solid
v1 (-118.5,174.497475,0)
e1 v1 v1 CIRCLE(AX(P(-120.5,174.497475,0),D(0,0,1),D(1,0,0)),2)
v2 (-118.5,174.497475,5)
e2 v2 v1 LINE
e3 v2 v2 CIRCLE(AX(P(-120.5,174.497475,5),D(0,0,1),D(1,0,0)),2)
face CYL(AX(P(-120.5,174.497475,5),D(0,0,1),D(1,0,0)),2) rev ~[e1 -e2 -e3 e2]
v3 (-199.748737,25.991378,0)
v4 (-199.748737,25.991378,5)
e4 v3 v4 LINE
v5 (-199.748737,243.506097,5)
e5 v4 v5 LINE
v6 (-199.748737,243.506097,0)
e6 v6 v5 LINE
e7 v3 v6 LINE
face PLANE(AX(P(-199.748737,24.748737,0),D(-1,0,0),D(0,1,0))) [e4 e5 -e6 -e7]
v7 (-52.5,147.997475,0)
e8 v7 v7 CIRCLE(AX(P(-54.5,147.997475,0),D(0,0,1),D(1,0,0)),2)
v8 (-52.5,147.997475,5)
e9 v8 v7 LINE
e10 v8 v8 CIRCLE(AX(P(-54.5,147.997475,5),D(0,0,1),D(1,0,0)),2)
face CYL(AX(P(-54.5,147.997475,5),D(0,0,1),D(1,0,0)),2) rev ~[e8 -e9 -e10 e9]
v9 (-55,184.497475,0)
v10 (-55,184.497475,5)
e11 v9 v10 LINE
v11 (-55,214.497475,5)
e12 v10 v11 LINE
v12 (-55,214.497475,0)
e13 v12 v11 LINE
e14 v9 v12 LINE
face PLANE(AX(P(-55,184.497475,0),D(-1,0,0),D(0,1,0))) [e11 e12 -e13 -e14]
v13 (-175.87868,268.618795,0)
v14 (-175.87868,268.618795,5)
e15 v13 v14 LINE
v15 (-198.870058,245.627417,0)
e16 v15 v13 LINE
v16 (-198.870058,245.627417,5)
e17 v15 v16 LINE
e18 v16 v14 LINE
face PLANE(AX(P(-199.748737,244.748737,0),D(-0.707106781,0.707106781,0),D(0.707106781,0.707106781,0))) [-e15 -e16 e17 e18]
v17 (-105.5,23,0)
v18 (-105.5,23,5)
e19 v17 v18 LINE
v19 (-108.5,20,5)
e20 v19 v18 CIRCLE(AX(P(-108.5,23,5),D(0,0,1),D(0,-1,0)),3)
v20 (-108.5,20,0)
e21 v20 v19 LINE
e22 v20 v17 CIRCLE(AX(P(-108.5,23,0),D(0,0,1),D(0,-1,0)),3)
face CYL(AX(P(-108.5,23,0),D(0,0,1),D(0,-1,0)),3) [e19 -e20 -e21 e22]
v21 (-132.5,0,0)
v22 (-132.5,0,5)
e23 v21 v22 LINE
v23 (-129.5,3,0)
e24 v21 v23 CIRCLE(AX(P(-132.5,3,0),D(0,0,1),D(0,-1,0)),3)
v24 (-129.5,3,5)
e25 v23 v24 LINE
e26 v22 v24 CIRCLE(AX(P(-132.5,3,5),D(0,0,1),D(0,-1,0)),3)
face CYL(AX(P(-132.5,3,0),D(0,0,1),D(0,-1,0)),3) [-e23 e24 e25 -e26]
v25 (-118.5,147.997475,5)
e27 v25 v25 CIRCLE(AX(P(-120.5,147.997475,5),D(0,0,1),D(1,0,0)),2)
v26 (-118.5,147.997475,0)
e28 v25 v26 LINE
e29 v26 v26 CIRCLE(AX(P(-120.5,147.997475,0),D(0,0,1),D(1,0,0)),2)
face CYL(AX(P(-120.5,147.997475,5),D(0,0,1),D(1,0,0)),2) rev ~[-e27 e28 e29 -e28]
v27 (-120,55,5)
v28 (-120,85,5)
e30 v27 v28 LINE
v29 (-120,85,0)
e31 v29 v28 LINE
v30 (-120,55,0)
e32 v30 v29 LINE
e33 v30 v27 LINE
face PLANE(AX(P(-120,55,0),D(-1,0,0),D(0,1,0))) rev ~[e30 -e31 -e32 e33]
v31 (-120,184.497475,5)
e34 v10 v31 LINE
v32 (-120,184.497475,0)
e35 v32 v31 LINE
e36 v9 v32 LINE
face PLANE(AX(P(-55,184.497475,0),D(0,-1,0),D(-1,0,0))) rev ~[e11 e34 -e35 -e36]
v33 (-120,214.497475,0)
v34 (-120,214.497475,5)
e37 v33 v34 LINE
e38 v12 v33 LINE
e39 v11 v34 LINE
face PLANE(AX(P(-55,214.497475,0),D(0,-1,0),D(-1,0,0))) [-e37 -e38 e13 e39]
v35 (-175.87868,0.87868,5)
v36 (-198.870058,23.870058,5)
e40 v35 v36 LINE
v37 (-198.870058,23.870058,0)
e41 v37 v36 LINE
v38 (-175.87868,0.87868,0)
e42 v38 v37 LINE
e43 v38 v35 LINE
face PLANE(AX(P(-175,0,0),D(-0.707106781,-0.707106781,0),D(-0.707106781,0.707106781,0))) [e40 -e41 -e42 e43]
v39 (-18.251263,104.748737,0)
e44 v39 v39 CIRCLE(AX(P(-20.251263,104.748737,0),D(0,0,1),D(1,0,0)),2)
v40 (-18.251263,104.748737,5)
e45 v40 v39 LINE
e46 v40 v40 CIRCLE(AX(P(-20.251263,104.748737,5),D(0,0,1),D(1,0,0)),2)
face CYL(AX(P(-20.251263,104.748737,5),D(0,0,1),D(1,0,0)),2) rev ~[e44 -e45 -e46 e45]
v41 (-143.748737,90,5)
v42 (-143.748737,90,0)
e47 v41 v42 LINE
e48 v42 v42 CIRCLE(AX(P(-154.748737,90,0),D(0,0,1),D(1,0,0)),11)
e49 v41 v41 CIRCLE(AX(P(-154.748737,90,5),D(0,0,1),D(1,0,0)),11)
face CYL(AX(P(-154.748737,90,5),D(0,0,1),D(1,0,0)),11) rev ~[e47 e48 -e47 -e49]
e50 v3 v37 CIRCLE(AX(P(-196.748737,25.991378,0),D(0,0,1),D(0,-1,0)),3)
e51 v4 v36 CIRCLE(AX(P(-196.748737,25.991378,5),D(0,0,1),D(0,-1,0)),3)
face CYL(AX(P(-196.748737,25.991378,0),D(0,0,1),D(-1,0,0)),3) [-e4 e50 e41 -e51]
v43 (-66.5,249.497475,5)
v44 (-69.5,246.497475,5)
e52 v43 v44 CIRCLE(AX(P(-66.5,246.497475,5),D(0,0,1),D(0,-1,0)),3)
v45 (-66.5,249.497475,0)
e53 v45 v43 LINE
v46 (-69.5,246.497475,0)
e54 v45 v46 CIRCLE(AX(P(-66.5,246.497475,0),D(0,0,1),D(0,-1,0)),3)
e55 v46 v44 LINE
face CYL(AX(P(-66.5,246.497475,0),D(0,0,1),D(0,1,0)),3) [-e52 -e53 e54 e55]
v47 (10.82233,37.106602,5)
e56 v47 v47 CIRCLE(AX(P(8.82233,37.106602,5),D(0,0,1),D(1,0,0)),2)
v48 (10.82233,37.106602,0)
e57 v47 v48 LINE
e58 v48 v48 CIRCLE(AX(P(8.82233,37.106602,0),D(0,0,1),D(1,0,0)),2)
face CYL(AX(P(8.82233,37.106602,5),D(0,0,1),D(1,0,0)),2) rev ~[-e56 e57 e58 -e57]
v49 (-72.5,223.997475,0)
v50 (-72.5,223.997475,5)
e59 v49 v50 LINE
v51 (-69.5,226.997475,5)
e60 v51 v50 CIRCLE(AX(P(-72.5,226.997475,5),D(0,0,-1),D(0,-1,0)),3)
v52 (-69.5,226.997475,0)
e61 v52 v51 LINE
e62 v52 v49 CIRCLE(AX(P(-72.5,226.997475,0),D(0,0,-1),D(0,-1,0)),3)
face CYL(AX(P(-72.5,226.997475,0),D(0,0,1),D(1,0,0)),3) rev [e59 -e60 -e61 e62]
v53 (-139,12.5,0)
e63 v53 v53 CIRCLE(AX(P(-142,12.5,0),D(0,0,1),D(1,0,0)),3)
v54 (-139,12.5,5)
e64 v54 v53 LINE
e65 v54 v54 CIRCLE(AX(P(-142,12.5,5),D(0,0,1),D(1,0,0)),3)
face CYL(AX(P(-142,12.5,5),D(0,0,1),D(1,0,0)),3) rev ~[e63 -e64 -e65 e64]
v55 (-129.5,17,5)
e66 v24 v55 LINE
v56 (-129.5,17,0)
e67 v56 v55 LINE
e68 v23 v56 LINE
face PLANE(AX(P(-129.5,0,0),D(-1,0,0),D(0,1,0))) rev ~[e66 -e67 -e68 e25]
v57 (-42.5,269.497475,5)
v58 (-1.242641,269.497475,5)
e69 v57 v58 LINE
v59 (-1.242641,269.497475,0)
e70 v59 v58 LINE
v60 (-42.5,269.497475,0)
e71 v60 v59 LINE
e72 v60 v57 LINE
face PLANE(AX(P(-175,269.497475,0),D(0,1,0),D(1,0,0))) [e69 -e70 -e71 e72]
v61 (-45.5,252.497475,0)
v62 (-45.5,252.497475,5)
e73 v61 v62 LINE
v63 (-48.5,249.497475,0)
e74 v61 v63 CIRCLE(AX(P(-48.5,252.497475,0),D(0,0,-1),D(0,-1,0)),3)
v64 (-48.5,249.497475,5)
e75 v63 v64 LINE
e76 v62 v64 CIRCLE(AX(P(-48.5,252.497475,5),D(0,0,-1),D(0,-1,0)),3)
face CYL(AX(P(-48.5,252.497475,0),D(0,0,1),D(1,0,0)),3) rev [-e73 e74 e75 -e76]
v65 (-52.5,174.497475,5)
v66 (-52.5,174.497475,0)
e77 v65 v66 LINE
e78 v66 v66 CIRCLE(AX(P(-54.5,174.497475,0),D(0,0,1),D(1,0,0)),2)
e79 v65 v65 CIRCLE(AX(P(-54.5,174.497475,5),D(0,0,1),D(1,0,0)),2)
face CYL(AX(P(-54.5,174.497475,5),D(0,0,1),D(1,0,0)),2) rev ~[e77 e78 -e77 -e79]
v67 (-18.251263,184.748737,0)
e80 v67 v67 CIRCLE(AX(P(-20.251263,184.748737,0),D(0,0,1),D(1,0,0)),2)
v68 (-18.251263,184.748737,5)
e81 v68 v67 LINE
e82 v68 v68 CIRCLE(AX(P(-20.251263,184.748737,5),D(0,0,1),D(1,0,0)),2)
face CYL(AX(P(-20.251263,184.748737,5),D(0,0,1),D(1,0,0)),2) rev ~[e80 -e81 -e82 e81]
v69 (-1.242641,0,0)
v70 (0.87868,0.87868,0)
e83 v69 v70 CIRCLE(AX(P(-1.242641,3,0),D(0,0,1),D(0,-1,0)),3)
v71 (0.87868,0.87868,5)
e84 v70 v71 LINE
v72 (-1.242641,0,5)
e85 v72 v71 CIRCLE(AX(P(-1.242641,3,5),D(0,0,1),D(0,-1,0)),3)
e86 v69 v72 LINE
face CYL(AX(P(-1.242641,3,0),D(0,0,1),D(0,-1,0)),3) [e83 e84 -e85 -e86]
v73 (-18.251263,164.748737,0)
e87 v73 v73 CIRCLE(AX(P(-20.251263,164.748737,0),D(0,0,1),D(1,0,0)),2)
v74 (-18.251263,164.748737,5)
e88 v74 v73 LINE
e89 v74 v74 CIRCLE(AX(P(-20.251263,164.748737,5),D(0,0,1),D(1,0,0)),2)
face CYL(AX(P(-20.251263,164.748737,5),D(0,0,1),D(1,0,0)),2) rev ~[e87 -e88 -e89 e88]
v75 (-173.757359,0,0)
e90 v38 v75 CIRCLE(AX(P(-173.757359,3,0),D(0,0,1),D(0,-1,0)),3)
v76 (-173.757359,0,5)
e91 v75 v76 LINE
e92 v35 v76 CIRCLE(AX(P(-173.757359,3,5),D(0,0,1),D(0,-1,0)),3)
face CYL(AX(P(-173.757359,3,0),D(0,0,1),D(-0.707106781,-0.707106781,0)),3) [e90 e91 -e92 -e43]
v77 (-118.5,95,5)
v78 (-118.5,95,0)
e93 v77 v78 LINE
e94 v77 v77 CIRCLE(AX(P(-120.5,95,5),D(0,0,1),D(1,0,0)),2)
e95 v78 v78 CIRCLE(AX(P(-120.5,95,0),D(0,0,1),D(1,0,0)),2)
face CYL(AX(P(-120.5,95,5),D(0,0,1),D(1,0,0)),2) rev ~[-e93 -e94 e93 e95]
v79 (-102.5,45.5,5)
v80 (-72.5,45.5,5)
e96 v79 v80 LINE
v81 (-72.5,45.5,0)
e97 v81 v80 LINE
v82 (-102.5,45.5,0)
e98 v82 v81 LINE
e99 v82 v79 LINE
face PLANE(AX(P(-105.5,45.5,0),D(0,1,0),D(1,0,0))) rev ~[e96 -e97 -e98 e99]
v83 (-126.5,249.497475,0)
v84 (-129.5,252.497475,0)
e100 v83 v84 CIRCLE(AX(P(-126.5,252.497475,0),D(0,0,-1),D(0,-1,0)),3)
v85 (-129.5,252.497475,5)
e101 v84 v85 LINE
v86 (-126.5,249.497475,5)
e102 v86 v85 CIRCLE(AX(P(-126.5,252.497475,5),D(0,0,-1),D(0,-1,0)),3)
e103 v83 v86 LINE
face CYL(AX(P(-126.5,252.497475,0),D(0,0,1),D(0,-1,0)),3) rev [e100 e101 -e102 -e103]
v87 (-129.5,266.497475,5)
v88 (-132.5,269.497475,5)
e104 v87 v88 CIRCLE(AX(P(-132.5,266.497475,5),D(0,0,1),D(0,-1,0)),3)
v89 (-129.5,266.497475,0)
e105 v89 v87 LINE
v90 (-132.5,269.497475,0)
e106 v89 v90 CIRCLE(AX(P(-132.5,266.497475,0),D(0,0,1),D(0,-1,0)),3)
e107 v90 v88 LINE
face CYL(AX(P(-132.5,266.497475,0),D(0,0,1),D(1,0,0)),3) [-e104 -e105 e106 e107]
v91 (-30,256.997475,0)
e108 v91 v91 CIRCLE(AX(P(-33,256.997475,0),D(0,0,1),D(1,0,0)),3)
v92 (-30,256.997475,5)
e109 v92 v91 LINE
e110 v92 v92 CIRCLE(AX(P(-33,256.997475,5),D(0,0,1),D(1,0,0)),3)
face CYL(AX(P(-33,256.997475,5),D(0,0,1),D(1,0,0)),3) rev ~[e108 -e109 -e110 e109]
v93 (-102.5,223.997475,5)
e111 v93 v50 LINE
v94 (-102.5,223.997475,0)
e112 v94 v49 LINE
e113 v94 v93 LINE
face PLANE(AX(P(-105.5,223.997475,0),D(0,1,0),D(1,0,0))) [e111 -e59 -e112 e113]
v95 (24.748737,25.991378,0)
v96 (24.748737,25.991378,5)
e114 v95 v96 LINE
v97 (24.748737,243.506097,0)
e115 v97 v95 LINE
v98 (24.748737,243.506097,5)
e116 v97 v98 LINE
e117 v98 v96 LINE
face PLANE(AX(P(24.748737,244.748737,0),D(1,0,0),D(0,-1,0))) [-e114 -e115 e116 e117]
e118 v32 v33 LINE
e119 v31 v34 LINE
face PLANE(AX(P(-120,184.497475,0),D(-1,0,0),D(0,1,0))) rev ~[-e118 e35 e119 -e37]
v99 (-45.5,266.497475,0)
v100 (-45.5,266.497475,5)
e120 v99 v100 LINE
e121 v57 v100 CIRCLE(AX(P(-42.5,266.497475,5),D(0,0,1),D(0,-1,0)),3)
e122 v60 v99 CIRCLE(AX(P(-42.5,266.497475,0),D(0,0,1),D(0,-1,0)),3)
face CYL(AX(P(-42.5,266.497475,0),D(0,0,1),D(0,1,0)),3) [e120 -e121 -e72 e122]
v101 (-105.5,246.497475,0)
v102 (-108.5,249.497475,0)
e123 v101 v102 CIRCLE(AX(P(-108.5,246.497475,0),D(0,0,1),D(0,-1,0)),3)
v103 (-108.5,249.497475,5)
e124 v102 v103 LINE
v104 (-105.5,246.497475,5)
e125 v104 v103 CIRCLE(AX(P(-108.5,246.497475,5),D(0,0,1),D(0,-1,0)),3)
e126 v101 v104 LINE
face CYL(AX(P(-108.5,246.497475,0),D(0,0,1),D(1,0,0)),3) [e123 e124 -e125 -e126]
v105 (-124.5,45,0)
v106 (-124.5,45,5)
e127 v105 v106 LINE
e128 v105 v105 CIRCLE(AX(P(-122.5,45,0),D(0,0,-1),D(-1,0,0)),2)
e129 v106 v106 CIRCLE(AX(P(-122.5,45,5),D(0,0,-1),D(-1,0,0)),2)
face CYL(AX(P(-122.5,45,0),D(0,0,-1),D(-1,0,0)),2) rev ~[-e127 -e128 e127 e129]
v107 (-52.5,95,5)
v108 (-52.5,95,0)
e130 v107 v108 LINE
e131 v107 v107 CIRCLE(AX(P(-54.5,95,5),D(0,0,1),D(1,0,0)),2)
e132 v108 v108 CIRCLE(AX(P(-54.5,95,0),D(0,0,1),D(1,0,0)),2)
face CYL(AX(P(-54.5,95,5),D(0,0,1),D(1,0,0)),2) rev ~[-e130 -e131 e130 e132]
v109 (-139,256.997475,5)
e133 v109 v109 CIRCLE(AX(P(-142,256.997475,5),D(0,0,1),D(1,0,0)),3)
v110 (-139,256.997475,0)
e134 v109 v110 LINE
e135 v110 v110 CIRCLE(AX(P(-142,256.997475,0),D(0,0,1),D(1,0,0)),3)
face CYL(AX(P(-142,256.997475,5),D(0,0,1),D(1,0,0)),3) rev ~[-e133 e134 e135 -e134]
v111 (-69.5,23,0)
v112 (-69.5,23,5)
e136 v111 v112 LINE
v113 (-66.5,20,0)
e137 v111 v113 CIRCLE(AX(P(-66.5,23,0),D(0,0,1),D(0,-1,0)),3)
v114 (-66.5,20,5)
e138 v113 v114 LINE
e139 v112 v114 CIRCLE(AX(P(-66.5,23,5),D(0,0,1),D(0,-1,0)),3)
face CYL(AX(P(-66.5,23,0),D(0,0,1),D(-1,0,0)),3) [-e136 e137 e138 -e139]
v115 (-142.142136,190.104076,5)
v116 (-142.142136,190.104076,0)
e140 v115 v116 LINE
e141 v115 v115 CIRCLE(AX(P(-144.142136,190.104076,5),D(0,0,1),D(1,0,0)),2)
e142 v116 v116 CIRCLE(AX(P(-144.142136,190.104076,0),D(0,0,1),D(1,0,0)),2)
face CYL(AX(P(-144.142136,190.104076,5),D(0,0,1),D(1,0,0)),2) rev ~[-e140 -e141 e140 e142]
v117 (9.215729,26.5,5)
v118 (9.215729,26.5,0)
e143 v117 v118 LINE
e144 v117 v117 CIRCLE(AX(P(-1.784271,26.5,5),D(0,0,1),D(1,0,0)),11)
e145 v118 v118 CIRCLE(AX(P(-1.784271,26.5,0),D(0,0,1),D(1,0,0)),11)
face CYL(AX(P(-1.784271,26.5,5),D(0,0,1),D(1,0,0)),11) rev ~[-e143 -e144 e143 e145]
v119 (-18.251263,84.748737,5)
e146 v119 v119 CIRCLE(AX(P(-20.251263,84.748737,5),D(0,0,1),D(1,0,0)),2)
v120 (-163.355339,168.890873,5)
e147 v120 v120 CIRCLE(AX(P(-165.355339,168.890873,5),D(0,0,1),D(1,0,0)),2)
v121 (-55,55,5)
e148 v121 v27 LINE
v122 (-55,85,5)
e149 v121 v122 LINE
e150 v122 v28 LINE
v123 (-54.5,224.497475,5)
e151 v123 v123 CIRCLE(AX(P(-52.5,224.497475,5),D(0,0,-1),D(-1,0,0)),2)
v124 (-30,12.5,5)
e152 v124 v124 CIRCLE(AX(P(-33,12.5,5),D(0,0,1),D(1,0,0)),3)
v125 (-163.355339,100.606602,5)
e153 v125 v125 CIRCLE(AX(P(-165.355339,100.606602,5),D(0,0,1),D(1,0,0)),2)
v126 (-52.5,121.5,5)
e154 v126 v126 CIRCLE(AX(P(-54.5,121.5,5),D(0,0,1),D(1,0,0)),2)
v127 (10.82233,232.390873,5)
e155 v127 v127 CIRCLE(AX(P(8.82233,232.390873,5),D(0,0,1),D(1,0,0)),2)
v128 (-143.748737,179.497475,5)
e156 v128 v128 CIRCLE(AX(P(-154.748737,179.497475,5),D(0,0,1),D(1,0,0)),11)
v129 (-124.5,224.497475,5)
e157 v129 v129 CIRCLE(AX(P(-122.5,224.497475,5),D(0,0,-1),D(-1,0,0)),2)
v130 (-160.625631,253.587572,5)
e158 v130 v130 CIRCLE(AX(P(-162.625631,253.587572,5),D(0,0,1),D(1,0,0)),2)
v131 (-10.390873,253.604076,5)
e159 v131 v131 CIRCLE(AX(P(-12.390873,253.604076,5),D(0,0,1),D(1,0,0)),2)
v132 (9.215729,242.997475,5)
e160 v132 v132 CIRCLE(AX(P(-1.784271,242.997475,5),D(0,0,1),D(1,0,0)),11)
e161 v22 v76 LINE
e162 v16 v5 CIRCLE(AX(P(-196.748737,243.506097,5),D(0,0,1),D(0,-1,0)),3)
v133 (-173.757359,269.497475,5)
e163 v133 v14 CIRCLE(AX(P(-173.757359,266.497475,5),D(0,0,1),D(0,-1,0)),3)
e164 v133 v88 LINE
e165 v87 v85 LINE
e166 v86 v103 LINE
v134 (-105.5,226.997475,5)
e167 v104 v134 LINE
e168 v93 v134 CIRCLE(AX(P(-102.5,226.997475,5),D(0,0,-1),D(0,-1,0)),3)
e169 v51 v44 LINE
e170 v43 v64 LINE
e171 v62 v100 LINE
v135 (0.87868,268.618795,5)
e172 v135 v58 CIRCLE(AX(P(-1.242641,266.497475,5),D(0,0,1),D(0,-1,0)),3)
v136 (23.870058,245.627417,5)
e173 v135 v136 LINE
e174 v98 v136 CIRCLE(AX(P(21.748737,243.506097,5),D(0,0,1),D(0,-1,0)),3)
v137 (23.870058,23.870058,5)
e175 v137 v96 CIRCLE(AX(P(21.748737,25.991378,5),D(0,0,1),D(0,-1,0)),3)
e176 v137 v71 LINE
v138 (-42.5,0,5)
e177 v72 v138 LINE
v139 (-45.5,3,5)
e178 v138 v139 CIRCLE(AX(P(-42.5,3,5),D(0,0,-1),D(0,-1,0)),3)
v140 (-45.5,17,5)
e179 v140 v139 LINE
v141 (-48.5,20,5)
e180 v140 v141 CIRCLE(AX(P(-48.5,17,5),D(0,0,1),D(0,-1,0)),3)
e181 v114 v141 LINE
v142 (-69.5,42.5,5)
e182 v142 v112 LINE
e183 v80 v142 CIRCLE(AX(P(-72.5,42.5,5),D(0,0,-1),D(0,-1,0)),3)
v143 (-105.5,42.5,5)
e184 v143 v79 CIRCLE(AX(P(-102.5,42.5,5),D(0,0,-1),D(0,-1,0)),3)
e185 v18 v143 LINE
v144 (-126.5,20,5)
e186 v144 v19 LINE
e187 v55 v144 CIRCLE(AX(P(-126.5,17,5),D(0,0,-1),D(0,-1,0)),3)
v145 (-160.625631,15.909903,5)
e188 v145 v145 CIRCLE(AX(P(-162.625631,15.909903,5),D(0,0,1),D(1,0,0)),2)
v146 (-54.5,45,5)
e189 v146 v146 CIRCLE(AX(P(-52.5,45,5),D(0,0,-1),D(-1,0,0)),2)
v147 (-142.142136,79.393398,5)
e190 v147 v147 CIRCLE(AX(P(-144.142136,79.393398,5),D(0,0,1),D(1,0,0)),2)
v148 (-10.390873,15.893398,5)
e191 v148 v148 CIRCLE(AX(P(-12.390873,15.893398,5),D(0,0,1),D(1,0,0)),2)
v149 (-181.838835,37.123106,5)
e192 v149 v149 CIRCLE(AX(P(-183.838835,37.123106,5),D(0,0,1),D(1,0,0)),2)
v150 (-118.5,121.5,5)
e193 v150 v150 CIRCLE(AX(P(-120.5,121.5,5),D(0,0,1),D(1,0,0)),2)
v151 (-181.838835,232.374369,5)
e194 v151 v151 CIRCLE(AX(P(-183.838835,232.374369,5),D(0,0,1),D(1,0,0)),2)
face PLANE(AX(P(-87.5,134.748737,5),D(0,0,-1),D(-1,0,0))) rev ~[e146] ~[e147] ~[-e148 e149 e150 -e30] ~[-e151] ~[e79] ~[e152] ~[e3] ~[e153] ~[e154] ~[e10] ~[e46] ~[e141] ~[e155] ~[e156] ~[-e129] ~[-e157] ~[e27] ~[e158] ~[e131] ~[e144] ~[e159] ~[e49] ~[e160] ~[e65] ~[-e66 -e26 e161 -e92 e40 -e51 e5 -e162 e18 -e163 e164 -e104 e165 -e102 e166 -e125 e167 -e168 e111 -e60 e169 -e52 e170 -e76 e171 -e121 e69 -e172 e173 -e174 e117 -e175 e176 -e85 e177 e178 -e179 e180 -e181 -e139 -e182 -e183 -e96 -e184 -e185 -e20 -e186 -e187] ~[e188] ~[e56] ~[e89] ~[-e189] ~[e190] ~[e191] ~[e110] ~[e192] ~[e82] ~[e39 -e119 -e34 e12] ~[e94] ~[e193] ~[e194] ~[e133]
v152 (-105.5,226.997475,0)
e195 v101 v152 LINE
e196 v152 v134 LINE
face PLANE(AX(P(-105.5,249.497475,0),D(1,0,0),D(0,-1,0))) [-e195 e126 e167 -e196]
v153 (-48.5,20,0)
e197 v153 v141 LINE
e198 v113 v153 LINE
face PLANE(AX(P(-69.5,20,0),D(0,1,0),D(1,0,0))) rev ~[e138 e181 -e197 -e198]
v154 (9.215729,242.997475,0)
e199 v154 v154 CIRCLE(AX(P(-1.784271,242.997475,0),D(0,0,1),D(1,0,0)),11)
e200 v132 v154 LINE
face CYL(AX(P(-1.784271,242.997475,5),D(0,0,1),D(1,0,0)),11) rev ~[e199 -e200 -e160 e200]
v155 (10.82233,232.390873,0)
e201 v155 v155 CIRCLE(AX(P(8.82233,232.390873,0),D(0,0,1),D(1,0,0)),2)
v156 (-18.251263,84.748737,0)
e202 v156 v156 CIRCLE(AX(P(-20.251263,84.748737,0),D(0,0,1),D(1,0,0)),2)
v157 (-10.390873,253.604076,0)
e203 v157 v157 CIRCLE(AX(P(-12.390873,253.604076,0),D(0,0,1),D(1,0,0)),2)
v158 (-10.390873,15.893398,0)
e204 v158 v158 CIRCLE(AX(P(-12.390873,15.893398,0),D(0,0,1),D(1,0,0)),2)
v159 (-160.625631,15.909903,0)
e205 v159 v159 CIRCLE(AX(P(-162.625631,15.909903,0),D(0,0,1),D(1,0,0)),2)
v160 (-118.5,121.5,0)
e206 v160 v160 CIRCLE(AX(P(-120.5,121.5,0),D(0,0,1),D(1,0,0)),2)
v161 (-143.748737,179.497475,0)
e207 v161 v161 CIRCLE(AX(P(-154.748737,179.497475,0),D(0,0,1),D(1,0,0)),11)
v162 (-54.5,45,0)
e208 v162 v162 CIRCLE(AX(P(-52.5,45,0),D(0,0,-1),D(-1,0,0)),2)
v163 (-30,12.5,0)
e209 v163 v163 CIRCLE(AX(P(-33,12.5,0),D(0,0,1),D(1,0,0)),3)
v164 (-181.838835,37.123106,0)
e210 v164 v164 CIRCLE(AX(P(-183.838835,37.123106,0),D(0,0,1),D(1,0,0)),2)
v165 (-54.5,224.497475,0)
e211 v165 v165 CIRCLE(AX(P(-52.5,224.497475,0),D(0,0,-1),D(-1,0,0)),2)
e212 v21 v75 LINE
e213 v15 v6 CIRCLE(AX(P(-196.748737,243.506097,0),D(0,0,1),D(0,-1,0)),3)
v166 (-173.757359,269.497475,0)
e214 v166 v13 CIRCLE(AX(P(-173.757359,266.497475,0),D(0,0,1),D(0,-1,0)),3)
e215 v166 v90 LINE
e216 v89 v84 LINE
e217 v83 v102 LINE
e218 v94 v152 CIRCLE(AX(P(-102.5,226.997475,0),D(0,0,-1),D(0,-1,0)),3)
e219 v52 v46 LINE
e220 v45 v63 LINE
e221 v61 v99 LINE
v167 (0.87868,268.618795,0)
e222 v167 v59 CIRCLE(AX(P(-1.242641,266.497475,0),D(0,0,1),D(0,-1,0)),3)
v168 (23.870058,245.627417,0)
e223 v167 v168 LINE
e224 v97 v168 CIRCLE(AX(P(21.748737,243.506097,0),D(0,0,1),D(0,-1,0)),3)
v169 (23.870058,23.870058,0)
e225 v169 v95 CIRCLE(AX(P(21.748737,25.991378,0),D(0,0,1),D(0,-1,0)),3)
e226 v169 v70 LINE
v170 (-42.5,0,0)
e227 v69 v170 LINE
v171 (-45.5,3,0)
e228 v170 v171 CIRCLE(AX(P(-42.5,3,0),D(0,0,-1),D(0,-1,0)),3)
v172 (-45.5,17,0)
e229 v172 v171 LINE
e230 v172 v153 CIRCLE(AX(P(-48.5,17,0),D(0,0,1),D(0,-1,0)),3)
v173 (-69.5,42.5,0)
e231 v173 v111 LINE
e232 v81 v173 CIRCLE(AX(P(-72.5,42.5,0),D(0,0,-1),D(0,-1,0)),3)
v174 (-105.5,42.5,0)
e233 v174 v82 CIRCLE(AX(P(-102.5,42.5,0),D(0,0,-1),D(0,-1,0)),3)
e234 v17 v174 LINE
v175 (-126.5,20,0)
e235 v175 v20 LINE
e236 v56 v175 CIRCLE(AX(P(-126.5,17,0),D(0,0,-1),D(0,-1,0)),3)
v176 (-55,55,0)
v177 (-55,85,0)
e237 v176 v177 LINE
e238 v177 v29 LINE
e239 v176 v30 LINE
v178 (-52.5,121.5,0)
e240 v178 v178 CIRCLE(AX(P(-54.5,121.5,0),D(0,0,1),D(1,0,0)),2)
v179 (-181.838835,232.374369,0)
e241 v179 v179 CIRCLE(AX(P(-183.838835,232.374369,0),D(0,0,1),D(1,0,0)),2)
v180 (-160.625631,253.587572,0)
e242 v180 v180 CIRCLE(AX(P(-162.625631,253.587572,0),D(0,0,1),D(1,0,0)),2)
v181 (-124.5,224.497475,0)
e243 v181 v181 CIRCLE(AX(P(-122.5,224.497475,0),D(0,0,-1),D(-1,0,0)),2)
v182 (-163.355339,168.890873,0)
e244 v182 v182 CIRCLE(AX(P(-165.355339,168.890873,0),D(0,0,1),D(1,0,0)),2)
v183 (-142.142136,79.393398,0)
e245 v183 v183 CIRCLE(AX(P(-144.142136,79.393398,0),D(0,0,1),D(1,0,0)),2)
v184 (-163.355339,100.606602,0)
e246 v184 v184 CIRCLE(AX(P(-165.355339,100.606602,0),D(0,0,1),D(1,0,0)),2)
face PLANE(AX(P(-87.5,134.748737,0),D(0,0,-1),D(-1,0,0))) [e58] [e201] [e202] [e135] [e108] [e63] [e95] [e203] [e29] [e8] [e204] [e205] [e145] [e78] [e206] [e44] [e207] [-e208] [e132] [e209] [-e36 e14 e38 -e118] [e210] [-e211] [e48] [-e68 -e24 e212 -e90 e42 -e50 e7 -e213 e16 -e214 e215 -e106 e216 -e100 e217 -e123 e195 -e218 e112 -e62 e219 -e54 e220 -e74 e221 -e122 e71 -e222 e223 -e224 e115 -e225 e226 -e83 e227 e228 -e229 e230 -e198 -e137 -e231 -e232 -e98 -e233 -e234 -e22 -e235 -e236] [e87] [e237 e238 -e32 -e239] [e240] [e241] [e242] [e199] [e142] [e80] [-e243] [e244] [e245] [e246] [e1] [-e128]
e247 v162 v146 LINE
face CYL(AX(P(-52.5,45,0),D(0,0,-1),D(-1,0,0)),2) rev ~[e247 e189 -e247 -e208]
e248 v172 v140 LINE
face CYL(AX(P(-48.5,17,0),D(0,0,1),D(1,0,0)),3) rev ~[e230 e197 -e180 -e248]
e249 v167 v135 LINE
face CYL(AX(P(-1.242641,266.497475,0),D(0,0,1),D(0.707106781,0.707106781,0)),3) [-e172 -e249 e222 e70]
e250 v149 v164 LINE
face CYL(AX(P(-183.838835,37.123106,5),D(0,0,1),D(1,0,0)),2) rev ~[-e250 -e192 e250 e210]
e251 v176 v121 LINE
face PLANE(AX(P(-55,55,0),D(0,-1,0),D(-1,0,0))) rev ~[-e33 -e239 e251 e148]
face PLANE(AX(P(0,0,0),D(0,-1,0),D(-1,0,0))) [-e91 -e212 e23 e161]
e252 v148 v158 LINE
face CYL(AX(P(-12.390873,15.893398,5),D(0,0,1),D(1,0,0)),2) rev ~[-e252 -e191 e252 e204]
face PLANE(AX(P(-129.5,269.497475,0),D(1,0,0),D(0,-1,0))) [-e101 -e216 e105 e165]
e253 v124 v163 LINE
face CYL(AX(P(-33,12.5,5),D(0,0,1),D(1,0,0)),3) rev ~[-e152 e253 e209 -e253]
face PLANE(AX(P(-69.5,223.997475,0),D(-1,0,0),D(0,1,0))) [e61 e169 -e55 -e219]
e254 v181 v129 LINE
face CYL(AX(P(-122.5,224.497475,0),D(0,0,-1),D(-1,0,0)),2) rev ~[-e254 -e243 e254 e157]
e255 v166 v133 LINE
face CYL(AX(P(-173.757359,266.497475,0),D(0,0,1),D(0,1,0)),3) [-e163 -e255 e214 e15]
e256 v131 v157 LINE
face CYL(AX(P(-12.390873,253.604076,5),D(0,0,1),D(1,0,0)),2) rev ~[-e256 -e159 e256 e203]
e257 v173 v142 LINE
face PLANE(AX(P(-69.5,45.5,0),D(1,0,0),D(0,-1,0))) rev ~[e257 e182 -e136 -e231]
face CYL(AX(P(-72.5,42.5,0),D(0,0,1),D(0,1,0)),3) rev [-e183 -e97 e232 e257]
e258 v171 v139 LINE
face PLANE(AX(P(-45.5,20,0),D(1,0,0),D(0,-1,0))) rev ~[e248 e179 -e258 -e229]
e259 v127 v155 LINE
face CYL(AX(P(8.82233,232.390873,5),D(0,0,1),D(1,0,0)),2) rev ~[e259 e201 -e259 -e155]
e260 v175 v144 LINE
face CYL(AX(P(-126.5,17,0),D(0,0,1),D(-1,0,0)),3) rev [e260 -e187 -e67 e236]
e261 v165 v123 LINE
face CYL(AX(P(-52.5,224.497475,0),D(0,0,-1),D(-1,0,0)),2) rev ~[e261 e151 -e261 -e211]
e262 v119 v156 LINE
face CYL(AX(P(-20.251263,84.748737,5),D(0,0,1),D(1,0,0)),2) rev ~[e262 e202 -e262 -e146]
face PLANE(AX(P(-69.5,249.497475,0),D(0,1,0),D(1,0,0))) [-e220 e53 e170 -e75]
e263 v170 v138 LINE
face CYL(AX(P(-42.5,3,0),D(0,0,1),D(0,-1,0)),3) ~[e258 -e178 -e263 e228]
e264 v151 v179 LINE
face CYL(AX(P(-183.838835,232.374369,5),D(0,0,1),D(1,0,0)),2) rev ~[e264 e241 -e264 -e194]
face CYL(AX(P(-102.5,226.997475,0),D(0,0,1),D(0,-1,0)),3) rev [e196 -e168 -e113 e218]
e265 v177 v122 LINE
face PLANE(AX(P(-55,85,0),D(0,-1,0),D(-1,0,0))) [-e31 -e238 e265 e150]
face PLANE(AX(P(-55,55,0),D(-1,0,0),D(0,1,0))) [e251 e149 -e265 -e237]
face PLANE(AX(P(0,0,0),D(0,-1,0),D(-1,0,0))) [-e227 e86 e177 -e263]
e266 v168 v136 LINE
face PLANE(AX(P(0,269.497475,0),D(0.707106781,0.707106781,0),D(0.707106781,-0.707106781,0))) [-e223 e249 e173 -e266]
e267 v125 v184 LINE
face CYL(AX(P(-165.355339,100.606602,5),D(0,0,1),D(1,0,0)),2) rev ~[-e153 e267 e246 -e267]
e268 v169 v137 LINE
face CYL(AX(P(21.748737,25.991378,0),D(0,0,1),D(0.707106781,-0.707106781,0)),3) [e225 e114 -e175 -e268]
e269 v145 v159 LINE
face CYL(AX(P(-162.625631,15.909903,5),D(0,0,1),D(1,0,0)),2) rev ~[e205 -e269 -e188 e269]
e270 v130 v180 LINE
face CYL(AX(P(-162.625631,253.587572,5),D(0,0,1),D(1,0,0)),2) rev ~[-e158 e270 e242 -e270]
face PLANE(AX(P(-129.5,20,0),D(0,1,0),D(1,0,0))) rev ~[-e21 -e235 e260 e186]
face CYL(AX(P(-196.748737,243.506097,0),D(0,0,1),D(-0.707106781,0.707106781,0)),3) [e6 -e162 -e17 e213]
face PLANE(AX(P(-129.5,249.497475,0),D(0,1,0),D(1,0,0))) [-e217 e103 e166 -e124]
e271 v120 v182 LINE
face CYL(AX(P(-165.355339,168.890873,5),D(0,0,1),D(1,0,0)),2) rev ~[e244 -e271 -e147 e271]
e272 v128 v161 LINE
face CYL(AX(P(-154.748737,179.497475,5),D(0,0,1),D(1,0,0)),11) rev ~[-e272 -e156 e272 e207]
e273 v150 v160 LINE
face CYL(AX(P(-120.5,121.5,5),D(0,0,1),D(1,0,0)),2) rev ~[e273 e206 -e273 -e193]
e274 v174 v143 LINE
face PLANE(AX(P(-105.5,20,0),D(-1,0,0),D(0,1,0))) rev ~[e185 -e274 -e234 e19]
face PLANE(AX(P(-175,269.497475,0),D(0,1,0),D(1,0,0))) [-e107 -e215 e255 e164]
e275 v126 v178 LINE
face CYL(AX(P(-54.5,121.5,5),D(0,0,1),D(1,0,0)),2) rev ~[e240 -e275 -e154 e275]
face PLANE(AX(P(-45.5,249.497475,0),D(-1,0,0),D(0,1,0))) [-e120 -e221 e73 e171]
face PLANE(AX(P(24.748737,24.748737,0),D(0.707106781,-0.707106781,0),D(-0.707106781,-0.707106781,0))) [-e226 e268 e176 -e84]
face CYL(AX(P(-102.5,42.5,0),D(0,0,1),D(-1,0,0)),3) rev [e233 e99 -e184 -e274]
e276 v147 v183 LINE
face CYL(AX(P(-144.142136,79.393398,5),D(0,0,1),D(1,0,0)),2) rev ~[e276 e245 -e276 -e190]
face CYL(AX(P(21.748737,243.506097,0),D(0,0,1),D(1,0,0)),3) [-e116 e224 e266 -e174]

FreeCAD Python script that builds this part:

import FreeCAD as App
import Part
import Sketcher
from FreeCAD import Vector
Q = App.Units.Quantity


def edges_at(feature, points):
    """Names of the edges that pass closest to the given points."""
    edges = feature.Shape.Edges
    near = lambda p: min(range(len(edges)), key=lambda i: edges[i].distToShape(Part.Vertex(*p))[0])
    return sorted({f"Edge{near(p) + 1}" for p in points})


def add_polygon(sketch, points):
    """Adds a closed chain of lines whose ends are joined by coincident constraints."""
    first, n = sketch.GeometryCount, len(points)
    for a, b in zip(points, points[1:] + points[:1]):
        sketch.addGeometry(Part.LineSegment(App.Vector(*a, 0), App.Vector(*b, 0)), False)
    for i in range(n):
        sketch.addConstraint(Sketcher.Constraint("Coincident", first + i, 2, first + (i + 1) % n, 1))

doc = App.newDocument("Part")
body = doc.addObject("PartDesign::Body", "Body")

sketch1 = body.newObject("Sketcher::SketchObject", "Sketch")
sketch1.AttachmentSupport = (doc.getObject("XY_Plane"), [""])
sketch1.MapMode = "FlatFace"
add_polygon(sketch1, [(-175, 0), (0, 0), (25, 25), (25, 245), (0, 269), (-175, 269), (-200, 245), (-200, 25)])
sketch1.addConstraint([
    Sketcher.Constraint("Horizontal", 0),
    Sketcher.Constraint("Vertical", 2),
    Sketcher.Constraint("Horizontal", 4),
    Sketcher.Constraint("Vertical", 6),
    Sketcher.Constraint("Coincident", 0, 2, -1, 1),
    Sketcher.Constraint("PointOnObject", 3, 2, -2),
    Sketcher.Constraint("Perpendicular", 1, 3),
    Sketcher.Constraint("Perpendicular", 3, 5),
    Sketcher.Constraint("Perpendicular", 5, 7),
    Sketcher.Constraint("Horizontal", 2, 2, 5, 2),
    Sketcher.Constraint("Horizontal", 1, 2, 6, 2),
    Sketcher.Constraint("Vertical", 4, 2, 7, 2),
    Sketcher.Constraint("DistanceX", 0, 1, 0, 2, Q("175 mm")),
    Sketcher.Constraint("DistanceY", 2, 1, 2, 2, Q("220 mm")),
    Sketcher.Constraint("Distance", 1, Q("35 mm")),
])
pad1 = body.newObject("PartDesign::Pad", "Pad")
pad1.Profile = sketch1
pad1.Length = 5

sketch2 = body.newObject("Sketcher::SketchObject", "Sketch001")
sketch2.AttachmentSupport = (doc.getObject("XY_Plane"), [""])
sketch2.MapMode = "FlatFace"
sketch2.addGeometry(Part.Circle(Vector(-52.5, 45, 0), Vector(0, 0, 1), 2), False)
sketch2.addGeometry(Part.Circle(Vector(-122.5, 45, 0), Vector(0, 0, 1), 2), False)
sketch2.addGeometry(Part.Circle(Vector(-122.5, 224.5, 0), Vector(0, 0, 1), 2), False)
sketch2.addGeometry(Part.Circle(Vector(-52.5, 224.5, 0), Vector(0, 0, 1), 2), False)
add_polygon(sketch2, [(-129.5, 0), (-129.5, 20), (-105.5, 20), (-105.5, 45.5), (-69.5, 45.5), (-69.5, 20), (-45.5, 20), (-45.5, 0)])
add_polygon(sketch2, [(-129.5, 269.5), (-45.5, 269.5), (-45.5, 249.5), (-69.5, 249.5), (-69.5, 224), (-105.5, 224), (-105.5, 249.5), (-129.5, 249.5)])
add_polygon(sketch2, [(-55, 214.5), (-55, 184.5), (-120, 184.5), (-120, 214.5)])
add_polygon(sketch2, [(-55, 85), (-55, 55), (-120, 55), (-120, 85)])
sketch2.addConstraint([
    Sketcher.Constraint("Vertical", 4),
    Sketcher.Constraint("Horizontal", 5),
    Sketcher.Constraint("Vertical", 6),
    Sketcher.Constraint("Horizontal", 7),
    Sketcher.Constraint("Vertical", 8),
    Sketcher.Constraint("Horizontal", 9),
    Sketcher.Constraint("Vertical", 10),
    Sketcher.Constraint("Horizontal", 11),
    Sketcher.Constraint("Horizontal", 12),
    Sketcher.Constraint("Vertical", 13),
    Sketcher.Constraint("Horizontal", 14),
    Sketcher.Constraint("Vertical", 15),
    Sketcher.Constraint("Horizontal", 16),
    Sketcher.Constraint("Vertical", 17),
    Sketcher.Constraint("Horizontal", 18),
    Sketcher.Constraint("Vertical", 19),
    Sketcher.Constraint("Vertical", 20),
    Sketcher.Constraint("Horizontal", 21),
    Sketcher.Constraint("Vertical", 22),
    Sketcher.Constraint("Horizontal", 23),
    Sketcher.Constraint("Vertical", 24),
    Sketcher.Constraint("Horizontal", 25),
    Sketcher.Constraint("Vertical", 26),
    Sketcher.Constraint("Horizontal", 27),
    Sketcher.Constraint("Equal", 0, 1),
    Sketcher.Constraint("Equal", 1, 2),
    Sketcher.Constraint("Equal", 2, 3),
    Sketcher.Constraint("PointOnObject", 10, 2, -1),
    Sketcher.Constraint("Horizontal", 0, 3, 1, 3),
    Sketcher.Constraint("Horizontal", 2, 3, 3, 3),
    Sketcher.Constraint("Horizontal", 5, 2, 8, 2),
    Sketcher.Constraint("Horizontal", 14, 2, 17, 2),
    Sketcher.Constraint("Vertical", 1, 3, 2, 3),
    Sketcher.Constraint("Vertical", 0, 3, 3, 3),
    Sketcher.Constraint("Vertical", 10, 2, 12, 2),
    Sketcher.Constraint("Vertical", 8, 2, 14, 2),
    Sketcher.Constraint("Vertical", 6, 2, 16, 2),
    Sketcher.Constraint("Vertical", 11, 2, 18, 2),
    Sketcher.Constraint("Vertical", 23, 2, 24, 2),
    Sketcher.Constraint("Vertical", 22, 2, 25, 2),
    Sketcher.Constraint("Equal", 5, 9),
    Sketcher.Constraint("Equal", 10, 13),
    Sketcher.Constraint("Equal", 8, 15),
    Sketcher.Constraint("Equal", 22, 24),
    Sketcher.Constraint("Diameter", 0, Q("4 mm")),
    Sketcher.Constraint("DistanceX", 5, 1, 5, 2, Q("24 mm")),
    Sketcher.Constraint("DistanceX", 7, 1, 7, 2, Q("36 mm")),
    Sketcher.Constraint("DistanceX", 21, 2, 21, 1, Q("65 mm")),
    Sketcher.Constraint("DistanceY", 4, 1, 4, 2, Q("20 mm")),
    Sketcher.Constraint("DistanceY", 20, 2, 20, 1, Q("30 mm")),
    Sketcher.Constraint("DistanceY", 6, 1, 6, 2, Q("25.5 mm")),
    Sketcher.Constraint("DistanceY", -1, 1, 0, 3, Q("45 mm")),
    Sketcher.Constraint("DistanceX", 20, 2, -1, 1, Q("55 mm")),
    Sketcher.Constraint("DistanceY", -1, 1, 24, 2, Q("55 mm")),
    Sketcher.Constraint("DistanceX", 1, 3, 0, 3, Q("70 mm")),
    Sketcher.Constraint("DistanceX", 4, 2, 1, 3, Q("7 mm")),
    Sketcher.Constraint("DistanceY", 3, 3, 12, 2, Q("45 mm")),
    Sketcher.Constraint("DistanceY", 20, 2, 3, 3, Q("40 mm")),
    Sketcher.Constraint("DistanceX", 0, 3, -1, 1, Q("52.5 mm")),
    Sketcher.Constraint("DistanceY", -1, 1, 2, 3, Q("224.497475 mm")),
])
pocket1 = body.newObject("PartDesign::Pocket", "Pocket")
pocket1.Profile = sketch2
pocket1.Type = "ThroughAll"
pocket1.Reversed = True
doc.recompute()

fillet = body.newObject("PartDesign::Fillet", "Fillet")
fillet.Base = (pocket1, edges_at(pocket1, [
    (0, 0, 2.5),
    (-175, 0, 2.5),
    (-199.749, 24.749, 2.5),
    (-199.749, 244.749, 2.5),
    (-175, 269.497, 2.5),
    (0, 269.497, 2.5),
    (24.749, 244.749, 2.5),
    (24.749, 24.749, 2.5),
    (-45.5, 249.497, 2.5),
    (-45.5, 269.497, 2.5),
    (-129.5, 269.497, 2.5),
    (-129.5, 249.497, 2.5),
    (-105.5, 249.497, 2.5),
    (-105.5, 223.997, 2.5),
    (-69.5, 223.997, 2.5),
    (-69.5, 249.497, 2.5),
    (-129.5, 0, 2.5),
    (-45.5, 0, 2.5),
    (-45.5, 20, 2.5),
    (-69.5, 20, 2.5),
    (-69.5, 45.5, 2.5),
    (-105.5, 45.5, 2.5),
    (-105.5, 20, 2.5),
    (-129.5, 20, 2.5),
]))
fillet.Radius = 3

sketch3 = body.newObject("Sketcher::SketchObject", "Sketch002")
sketch3.AttachmentSupport = (doc.getObject("XY_Plane"), [""])
sketch3.MapMode = "FlatFace"
sketch3.AttachmentOffset = App.Placement(Vector(0, 0, 5), App.Rotation())
sketch3.addGeometry(Part.Circle(Vector(-12.4, 15.9, 0), Vector(0, 0, 1), 2), False)
sketch3.addConstraint([
    Sketcher.Constraint("Diameter", 0, Q("4 mm")),
    Sketcher.Constraint("DistanceY", -1, 1, 0, 3, Q("15.893398 mm")),
    Sketcher.Constraint("DistanceX", 0, 3, -1, 1, Q("12.390873 mm")),
])
pocket2 = body.newObject("PartDesign::Pocket", "Pocket001")
pocket2.Profile = sketch3
pocket2.Type = "UpToFirst"

sketch4 = body.newObject("Sketcher::SketchObject", "Sketch003")
sketch4.AttachmentSupport = (doc.getObject("XY_Plane"), [""])
sketch4.MapMode = "FlatFace"
sketch4.AttachmentOffset = App.Placement(Vector(0, 0, 5), App.Rotation())
sketch4.addGeometry(Part.Circle(Vector(8.8, 37.1, 0), Vector(0, 0, 1), 2), False)
sketch4.addConstraint([
    Sketcher.Constraint("Diameter", 0, Q("4 mm")),
    Sketcher.Constraint("DistanceY", -1, 1, 0, 3, Q("37.106602 mm")),
    Sketcher.Constraint("DistanceX", -1, 1, 0, 3, Q("8.82233 mm")),
])
pocket3 = body.newObject("PartDesign::Pocket", "Pocket002")
pocket3.Profile = sketch4
pocket3.Type = "UpToFirst"

sketch5 = body.newObject("Sketcher::SketchObject", "Sketch004")
sketch5.AttachmentSupport = (doc.getObject("XY_Plane"), [""])
sketch5.MapMode = "FlatFace"
sketch5.AttachmentOffset = App.Placement(Vector(0, 0, 5), App.Rotation())
sketch5.addGeometry(Part.Circle(Vector(8.8, 232.4, 0), Vector(0, 0, 1), 2), False)
sketch5.addConstraint([
    Sketcher.Constraint("Diameter", 0, Q("4 mm")),
    Sketcher.Constraint("DistanceX", -1, 1, 0, 3, Q("8.82233 mm")),
    Sketcher.Constraint("DistanceY", -1, 1, 0, 3, Q("232.390873 mm")),
])
pocket4 = body.newObject("PartDesign::Pocket", "Pocket003")
pocket4.Profile = sketch5
pocket4.Type = "UpToFirst"

sketch6 = body.newObject("Sketcher::SketchObject", "Sketch005")
sketch6.AttachmentSupport = (doc.getObject("XY_Plane"), [""])
sketch6.MapMode = "FlatFace"
sketch6.AttachmentOffset = App.Placement(Vector(0, 0, 5), App.Rotation())
sketch6.addGeometry(Part.Circle(Vector(-12.4, 253.6, 0), Vector(0, 0, 1), 2), False)
sketch6.addConstraint([
    Sketcher.Constraint("Diameter", 0, Q("4 mm")),
    Sketcher.Constraint("DistanceX", 0, 3, -1, 1, Q("12.390873 mm")),
    Sketcher.Constraint("DistanceY", -1, 1, 0, 3, Q("253.604076 mm")),
])
pocket5 = body.newObject("PartDesign::Pocket", "Pocket004")
pocket5.Profile = sketch6
pocket5.Type = "UpToFirst"

sketch7 = body.newObject("Sketcher::SketchObject", "Sketch006")
sketch7.AttachmentSupport = (doc.getObject("XY_Plane"), [""])
sketch7.MapMode = "FlatFace"
sketch7.AttachmentOffset = App.Placement(Vector(0, 0, 5), App.Rotation())
sketch7.addGeometry(Part.Circle(Vector(-2, 243, 0), Vector(0, 0, 1), 11), False)
sketch7.addConstraint([
    Sketcher.Constraint("Diameter", 0, Q("22 mm")),
    Sketcher.Constraint("DistanceX", 0, 3, -1, 1, Q("1.784271 mm")),
    Sketcher.Constraint("DistanceY", -1, 1, 0, 3, Q("242.997475 mm")),
])
pocket6 = body.newObject("PartDesign::Pocket", "Pocket005")
pocket6.Profile = sketch7
pocket6.Type = "UpToFirst"

sketch8 = body.newObject("Sketcher::SketchObject", "Sketch007")
sketch8.AttachmentSupport = (doc.getObject("XY_Plane"), [""])
sketch8.MapMode = "FlatFace"
sketch8.AttachmentOffset = App.Placement(Vector(0, 0, 5), App.Rotation())
sketch8.addGeometry(Part.Circle(Vector(-2, 26, 0), Vector(0, 0, 1), 11), False)
sketch8.addConstraint([
    Sketcher.Constraint("Diameter", 0, Q("22 mm")),
    Sketcher.Constraint("DistanceY", -1, 1, 0, 3, Q("26.5 mm")),
    Sketcher.Constraint("DistanceX", 0, 3, -1, 1, Q("1.784271 mm")),
])
pocket7 = body.newObject("PartDesign::Pocket", "Pocket006")
pocket7.Profile = sketch8
pocket7.Type = "UpToFirst"

sketch9 = body.newObject("Sketcher::SketchObject", "Sketch008")
sketch9.AttachmentSupport = (doc.getObject("XY_Plane"), [""])
sketch9.MapMode = "FlatFace"
sketch9.AttachmentOffset = App.Placement(Vector(0, 0, 5), App.Rotation())
sketch9.addGeometry(Part.Circle(Vector(-144.1, 190.1, 0), Vector(0, 0, 1), 2), False)
sketch9.addConstraint([
    Sketcher.Constraint("Diameter", 0, Q("4 mm")),
    Sketcher.Constraint("DistanceX", 0, 3, -1, 1, Q("144.142136 mm")),
    Sketcher.Constraint("DistanceY", -1, 1, 0, 3, Q("190.104076 mm")),
])
pocket8 = body.newObject("PartDesign::Pocket", "Pocket007")
pocket8.Profile = sketch9
pocket8.Type = "UpToFirst"

sketch10 = body.newObject("Sketcher::SketchObject", "Sketch009")
sketch10.AttachmentSupport = (doc.getObject("XY_Plane"), [""])
sketch10.MapMode = "FlatFace"
sketch10.AttachmentOffset = App.Placement(Vector(0, 0, 5), App.Rotation())
sketch10.addGeometry(Part.Circle(Vector(-165.4, 168.9, 0), Vector(0, 0, 1), 2), False)
sketch10.addConstraint([
    Sketcher.Constraint("Diameter", 0, Q("4 mm")),
    Sketcher.Constraint("DistanceX", 0, 3, -1, 1, Q("165.355339 mm")),
    Sketcher.Constraint("DistanceY", -1, 1, 0, 3, Q("168.890873 mm")),
])
pocket9 = body.newObject("PartDesign::Pocket", "Pocket008")
pocket9.Profile = sketch10
pocket9.Type = "UpToFirst"

sketch11 = body.newObject("Sketcher::SketchObject", "Sketch010")
sketch11.AttachmentSupport = (doc.getObject("XY_Plane"), [""])
sketch11.MapMode = "FlatFace"
sketch11.AttachmentOffset = App.Placement(Vector(0, 0, 5), App.Rotation())
sketch11.addGeometry(Part.Circle(Vector(-155, 179, 0), Vector(0, 0, 1), 11), False)
sketch11.addConstraint([
    Sketcher.Constraint("Diameter", 0, Q("22 mm")),
    Sketcher.Constraint("DistanceX", 0, 3, -1, 1, Q("154.748737 mm")),
    Sketcher.Constraint("DistanceY", -1, 1, 0, 3, Q("179.497475 mm")),
])
pocket10 = body.newObject("PartDesign::Pocket", "Pocket009")
pocket10.Profile = sketch11
pocket10.Type = "UpToFirst"

sketch12 = body.newObject("Sketcher::SketchObject", "Sketch011")
sketch12.AttachmentSupport = (doc.getObject("XY_Plane"), [""])
sketch12.MapMode = "FlatFace"
sketch12.AttachmentOffset = App.Placement(Vector(0, 0, 5), App.Rotation())
sketch12.addGeometry(Part.Circle(Vector(-165.4, 100.6, 0), Vector(0, 0, 1), 2), False)
sketch12.addConstraint([
    Sketcher.Constraint("Diameter", 0, Q("4 mm")),
    Sketcher.Constraint("DistanceY", -1, 1, 0, 3, Q("100.606602 mm")),
    Sketcher.Constraint("DistanceX", 0, 3, -1, 1, Q("165.355339 mm")),
])
pocket11 = body.newObject("PartDesign::Pocket", "Pocket010")
pocket11.Profile = sketch12
pocket11.Type = "UpToFirst"

sketch13 = body.newObject("Sketcher::SketchObject", "Sketch012")
sketch13.AttachmentSupport = (doc.getObject("XY_Plane"), [""])
sketch13.MapMode = "FlatFace"
sketch13.AttachmentOffset = App.Placement(Vector(0, 0, 5), App.Rotation())
sketch13.addGeometry(Part.Circle(Vector(-155, 90, 0), Vector(0, 0, 1), 11), False)
sketch13.addConstraint([
    Sketcher.Constraint("Diameter", 0, Q("22 mm")),
    Sketcher.Constraint("DistanceY", -1, 1, 0, 3, Q("90 mm")),
    Sketcher.Constraint("DistanceX", 0, 3, -1, 1, Q("154.748737 mm")),
])
pocket12 = body.newObject("PartDesign::Pocket", "Pocket011")
pocket12.Profile = sketch13
pocket12.Type = "UpToFirst"

sketch14 = body.newObject("Sketcher::SketchObject", "Sketch013")
sketch14.AttachmentSupport = (doc.getObject("XY_Plane"), [""])
sketch14.MapMode = "FlatFace"
sketch14.AttachmentOffset = App.Placement(Vector(0, 0, 5), App.Rotation())
sketch14.addGeometry(Part.Circle(Vector(-144.1, 79.4, 0), Vector(0, 0, 1), 2), False)
sketch14.addConstraint([
    Sketcher.Constraint("Diameter", 0, Q("4 mm")),
    Sketcher.Constraint("DistanceY", -1, 1, 0, 3, Q("79.393398 mm")),
    Sketcher.Constraint("DistanceX", 0, 3, -1, 1, Q("144.142136 mm")),
])
pocket13 = body.newObject("PartDesign::Pocket", "Pocket012")
pocket13.Profile = sketch14
pocket13.Type = "UpToFirst"

sketch15 = body.newObject("Sketcher::SketchObject", "Sketch014")
sketch15.AttachmentSupport = (doc.getObject("XY_Plane"), [""])
sketch15.MapMode = "FlatFace"
sketch15.AttachmentOffset = App.Placement(Vector(0, 0, 5), App.Rotation())
sketch15.addGeometry(Part.Circle(Vector(-183.8, 37.1, 0), Vector(0, 0, 1), 2), False)
sketch15.addConstraint([
    Sketcher.Constraint("Diameter", 0, Q("4 mm")),
    Sketcher.Constraint("DistanceX", 0, 3, -1, 1, Q("183.838835 mm")),
    Sketcher.Constraint("DistanceY", -1, 1, 0, 3, Q("37.123106 mm")),
])
pocket14 = body.newObject("PartDesign::Pocket", "Pocket013")
pocket14.Profile = sketch15
pocket14.Type = "UpToFirst"

sketch16 = body.newObject("Sketcher::SketchObject", "Sketch015")
sketch16.AttachmentSupport = (doc.getObject("XY_Plane"), [""])
sketch16.MapMode = "FlatFace"
sketch16.AttachmentOffset = App.Placement(Vector(0, 0, 5), App.Rotation())
sketch16.addGeometry(Part.Circle(Vector(-162.6, 15.9, 0), Vector(0, 0, 1), 2), False)
sketch16.addConstraint([
    Sketcher.Constraint("Diameter", 0, Q("4 mm")),
    Sketcher.Constraint("DistanceX", 0, 3, -1, 1, Q("162.625631 mm")),
    Sketcher.Constraint("DistanceY", -1, 1, 0, 3, Q("15.909903 mm")),
])
pocket15 = body.newObject("PartDesign::Pocket", "Pocket014")
pocket15.Profile = sketch16
pocket15.Type = "UpToFirst"

sketch17 = body.newObject("Sketcher::SketchObject", "Sketch016")
sketch17.AttachmentSupport = (doc.getObject("XY_Plane"), [""])
sketch17.MapMode = "FlatFace"
sketch17.AttachmentOffset = App.Placement(Vector(0, 0, 5), App.Rotation())
sketch17.addGeometry(Part.Circle(Vector(-162.6, 253.6, 0), Vector(0, 0, 1), 2), False)
sketch17.addConstraint([
    Sketcher.Constraint("Diameter", 0, Q("4 mm")),
    Sketcher.Constraint("DistanceX", 0, 3, -1, 1, Q("162.625631 mm")),
    Sketcher.Constraint("DistanceY", -1, 1, 0, 3, Q("253.587572 mm")),
])
pocket16 = body.newObject("PartDesign::Pocket", "Pocket015")
pocket16.Profile = sketch17
pocket16.Type = "UpToFirst"

sketch18 = body.newObject("Sketcher::SketchObject", "Sketch017")
sketch18.AttachmentSupport = (doc.getObject("XY_Plane"), [""])
sketch18.MapMode = "FlatFace"
sketch18.AttachmentOffset = App.Placement(Vector(0, 0, 5), App.Rotation())
sketch18.addGeometry(Part.Circle(Vector(-183.8, 232.4, 0), Vector(0, 0, 1), 2), False)
sketch18.addConstraint([
    Sketcher.Constraint("Diameter", 0, Q("4 mm")),
    Sketcher.Constraint("DistanceY", -1, 1, 0, 3, Q("232.374369 mm")),
    Sketcher.Constraint("DistanceX", 0, 3, -1, 1, Q("183.838835 mm")),
])
pocket17 = body.newObject("PartDesign::Pocket", "Pocket016")
pocket17.Profile = sketch18
pocket17.Type = "UpToFirst"

sketch19 = body.newObject("Sketcher::SketchObject", "Sketch018")
sketch19.AttachmentSupport = (doc.getObject("XY_Plane"), [""])
sketch19.MapMode = "FlatFace"
sketch19.AttachmentOffset = App.Placement(Vector(0, 0, 5), App.Rotation())
sketch19.addGeometry(Part.Circle(Vector(-142, 12.5, 0), Vector(0, 0, 1), 3), False)
sketch19.addConstraint([
    Sketcher.Constraint("Diameter", 0, Q("6 mm")),
    Sketcher.Constraint("DistanceX", 0, 3, -1, 1, Q("142 mm")),
    Sketcher.Constraint("DistanceY", -1, 1, 0, 3, Q("12.5 mm")),
])
pocket18 = body.newObject("PartDesign::Pocket", "Pocket017")
pocket18.Profile = sketch19
pocket18.Type = "UpToFirst"

sketch20 = body.newObject("Sketcher::SketchObject", "Sketch019")
sketch20.AttachmentSupport = (doc.getObject("XY_Plane"), [""])
sketch20.MapMode = "FlatFace"
sketch20.AttachmentOffset = App.Placement(Vector(0, 0, 5), App.Rotation())
sketch20.addGeometry(Part.Circle(Vector(-142, 257, 0), Vector(0, 0, 1), 3), False)
sketch20.addConstraint([
    Sketcher.Constraint("Diameter", 0, Q("6 mm")),
    Sketcher.Constraint("DistanceX", 0, 3, -1, 1, Q("142 mm")),
    Sketcher.Constraint("DistanceY", -1, 1, 0, 3, Q("256.997475 mm")),
])
pocket19 = body.newObject("PartDesign::Pocket", "Pocket018")
pocket19.Profile = sketch20
pocket19.Type = "UpToFirst"

sketch21 = body.newObject("Sketcher::SketchObject", "Sketch020")
sketch21.AttachmentSupport = (doc.getObject("XY_Plane"), [""])
sketch21.MapMode = "FlatFace"
sketch21.AttachmentOffset = App.Placement(Vector(0, 0, 5), App.Rotation())
sketch21.addGeometry(Part.Circle(Vector(-33, 257, 0), Vector(0, 0, 1), 3), False)
sketch21.addConstraint([
    Sketcher.Constraint("Diameter", 0, Q("6 mm")),
    Sketcher.Constraint("DistanceX", 0, 3, -1, 1, Q("33 mm")),
    Sketcher.Constraint("DistanceY", -1, 1, 0, 3, Q("256.997475 mm")),
])
pocket20 = body.newObject("PartDesign::Pocket", "Pocket019")
pocket20.Profile = sketch21
pocket20.Type = "UpToFirst"

sketch22 = body.newObject("Sketcher::SketchObject", "Sketch021")
sketch22.AttachmentSupport = (doc.getObject("XY_Plane"), [""])
sketch22.MapMode = "FlatFace"
sketch22.AttachmentOffset = App.Placement(Vector(0, 0, 5), App.Rotation())
sketch22.addGeometry(Part.Circle(Vector(-33, 12.5, 0), Vector(0, 0, 1), 3), False)
sketch22.addConstraint([
    Sketcher.Constraint("Diameter", 0, Q("6 mm")),
    Sketcher.Constraint("DistanceX", 0, 3, -1, 1, Q("33 mm")),
    Sketcher.Constraint("DistanceY", -1, 1, 0, 3, Q("12.5 mm")),
])
pocket21 = body.newObject("PartDesign::Pocket", "Pocket020")
pocket21.Profile = sketch22
pocket21.Type = "UpToFirst"

sketch23 = body.newObject("Sketcher::SketchObject", "Sketch022")
sketch23.AttachmentSupport = (doc.getObject("XY_Plane"), [""])
sketch23.MapMode = "FlatFace"
sketch23.AttachmentOffset = App.Placement(Vector(0, 0, 5), App.Rotation())
sketch23.addGeometry([
    Part.Circle(Vector(-120.5, 174.5, 0), Vector(0, 0, 1), 2),
    Part.Circle(Vector(-120.5, 148, 0), Vector(0, 0, 1), 2),
    Part.Circle(Vector(-54.5, 148, 0), Vector(0, 0, 1), 2),
    Part.Circle(Vector(-54.5, 174.5, 0), Vector(0, 0, 1), 2),
    Part.Circle(Vector(-54.5, 121.5, 0), Vector(0, 0, 1), 2),
    Part.Circle(Vector(-54.5, 95, 0), Vector(0, 0, 1), 2),
    Part.Circle(Vector(-120.5, 121.5, 0), Vector(0, 0, 1), 2),
    Part.Circle(Vector(-120.5, 95, 0), Vector(0, 0, 1), 2),
], False)
sketch23.addConstraint([
    Sketcher.Constraint("Equal", 0, 1),
    Sketcher.Constraint("Equal", 1, 2),
    Sketcher.Constraint("Equal", 2, 3),
    Sketcher.Constraint("Equal", 3, 4),
    Sketcher.Constraint("Equal", 4, 5),
    Sketcher.Constraint("Equal", 5, 6),
    Sketcher.Constraint("Equal", 6, 7),
    Sketcher.Constraint("Horizontal", 1, 3, 2, 3),
    Sketcher.Constraint("Horizontal", 0, 3, 3, 3),
    Sketcher.Constraint("Horizontal", 4, 3, 6, 3),
    Sketcher.Constraint("Horizontal", 5, 3, 7, 3),
    Sketcher.Constraint("Vertical", 0, 3, 1, 3),
    Sketcher.Constraint("Vertical", 2, 3, 3, 3),
    Sketcher.Constraint("Vertical", 3, 3, 4, 3),
    Sketcher.Constraint("Vertical", 4, 3, 5, 3),
    Sketcher.Constraint("Vertical", 1, 3, 6, 3),
    Sketcher.Constraint("Vertical", 6, 3, 7, 3),
    Sketcher.Constraint("Diameter", 0, Q("4 mm")),
    Sketcher.Constraint("DistanceY", -1, 1, 5, 3, Q("95 mm")),
    Sketcher.Constraint("DistanceX", 1, 3, 2, 3, Q("66 mm")),
    Sketcher.Constraint("DistanceX", 0, 3, -1, 1, Q("120.5 mm")),
    Sketcher.Constraint("DistanceY", -1, 1, 4, 3, Q("121.5 mm")),
    Sketcher.Constraint("DistanceY", 1, 3, 0, 3, Q("26.5 mm")),
    Sketcher.Constraint("DistanceY", -1, 1, 0, 3, Q("174.497475 mm")),
])
pocket22 = body.newObject("PartDesign::Pocket", "Pocket021")
pocket22.Profile = sketch23
pocket22.Type = "ThroughAll"

sketch24 = body.newObject("Sketcher::SketchObject", "Sketch023")
sketch24.AttachmentSupport = (doc.getObject("XY_Plane"), [""])
sketch24.MapMode = "FlatFace"
sketch24.AttachmentOffset = App.Placement(Vector(0, 0, 5), App.Rotation())
sketch24.addGeometry([
    Part.Circle(Vector(-20.3, 184.7, 0), Vector(0, 0, 1), 2),
    Part.Circle(Vector(-20.3, 164.7, 0), Vector(0, 0, 1), 2),
    Part.Circle(Vector(-20.3, 104.7, 0), Vector(0, 0, 1), 2),
    Part.Circle(Vector(-20.3, 84.7, 0), Vector(0, 0, 1), 2),
], False)
sketch24.addConstraint([
    Sketcher.Constraint("Equal", 0, 1),
    Sketcher.Constraint("Equal", 1, 2),
    Sketcher.Constraint("Equal", 2, 3),
    Sketcher.Constraint("Vertical", 0, 3, 1, 3),
    Sketcher.Constraint("Vertical", 1, 3, 2, 3),
    Sketcher.Constraint("Vertical", 2, 3, 3, 3),
    Sketcher.Constraint("Diameter", 0, Q("4 mm")),
    Sketcher.Constraint("DistanceY", 1, 3, 0, 3, Q("20 mm")),
    Sketcher.Constraint("DistanceY", 2, 3, 1, 3, Q("60 mm")),
    Sketcher.Constraint("DistanceY", 3, 3, 2, 3, Q("20 mm")),
    Sketcher.Constraint("DistanceX", 0, 3, -1, 1, Q("20.251263 mm")),
    Sketcher.Constraint("DistanceY", -1, 1, 0, 3, Q("184.748737 mm")),
])
pocket23 = body.newObject("PartDesign::Pocket", "Pocket022")
pocket23.Profile = sketch24
pocket23.Length = 10

doc.recompute()
